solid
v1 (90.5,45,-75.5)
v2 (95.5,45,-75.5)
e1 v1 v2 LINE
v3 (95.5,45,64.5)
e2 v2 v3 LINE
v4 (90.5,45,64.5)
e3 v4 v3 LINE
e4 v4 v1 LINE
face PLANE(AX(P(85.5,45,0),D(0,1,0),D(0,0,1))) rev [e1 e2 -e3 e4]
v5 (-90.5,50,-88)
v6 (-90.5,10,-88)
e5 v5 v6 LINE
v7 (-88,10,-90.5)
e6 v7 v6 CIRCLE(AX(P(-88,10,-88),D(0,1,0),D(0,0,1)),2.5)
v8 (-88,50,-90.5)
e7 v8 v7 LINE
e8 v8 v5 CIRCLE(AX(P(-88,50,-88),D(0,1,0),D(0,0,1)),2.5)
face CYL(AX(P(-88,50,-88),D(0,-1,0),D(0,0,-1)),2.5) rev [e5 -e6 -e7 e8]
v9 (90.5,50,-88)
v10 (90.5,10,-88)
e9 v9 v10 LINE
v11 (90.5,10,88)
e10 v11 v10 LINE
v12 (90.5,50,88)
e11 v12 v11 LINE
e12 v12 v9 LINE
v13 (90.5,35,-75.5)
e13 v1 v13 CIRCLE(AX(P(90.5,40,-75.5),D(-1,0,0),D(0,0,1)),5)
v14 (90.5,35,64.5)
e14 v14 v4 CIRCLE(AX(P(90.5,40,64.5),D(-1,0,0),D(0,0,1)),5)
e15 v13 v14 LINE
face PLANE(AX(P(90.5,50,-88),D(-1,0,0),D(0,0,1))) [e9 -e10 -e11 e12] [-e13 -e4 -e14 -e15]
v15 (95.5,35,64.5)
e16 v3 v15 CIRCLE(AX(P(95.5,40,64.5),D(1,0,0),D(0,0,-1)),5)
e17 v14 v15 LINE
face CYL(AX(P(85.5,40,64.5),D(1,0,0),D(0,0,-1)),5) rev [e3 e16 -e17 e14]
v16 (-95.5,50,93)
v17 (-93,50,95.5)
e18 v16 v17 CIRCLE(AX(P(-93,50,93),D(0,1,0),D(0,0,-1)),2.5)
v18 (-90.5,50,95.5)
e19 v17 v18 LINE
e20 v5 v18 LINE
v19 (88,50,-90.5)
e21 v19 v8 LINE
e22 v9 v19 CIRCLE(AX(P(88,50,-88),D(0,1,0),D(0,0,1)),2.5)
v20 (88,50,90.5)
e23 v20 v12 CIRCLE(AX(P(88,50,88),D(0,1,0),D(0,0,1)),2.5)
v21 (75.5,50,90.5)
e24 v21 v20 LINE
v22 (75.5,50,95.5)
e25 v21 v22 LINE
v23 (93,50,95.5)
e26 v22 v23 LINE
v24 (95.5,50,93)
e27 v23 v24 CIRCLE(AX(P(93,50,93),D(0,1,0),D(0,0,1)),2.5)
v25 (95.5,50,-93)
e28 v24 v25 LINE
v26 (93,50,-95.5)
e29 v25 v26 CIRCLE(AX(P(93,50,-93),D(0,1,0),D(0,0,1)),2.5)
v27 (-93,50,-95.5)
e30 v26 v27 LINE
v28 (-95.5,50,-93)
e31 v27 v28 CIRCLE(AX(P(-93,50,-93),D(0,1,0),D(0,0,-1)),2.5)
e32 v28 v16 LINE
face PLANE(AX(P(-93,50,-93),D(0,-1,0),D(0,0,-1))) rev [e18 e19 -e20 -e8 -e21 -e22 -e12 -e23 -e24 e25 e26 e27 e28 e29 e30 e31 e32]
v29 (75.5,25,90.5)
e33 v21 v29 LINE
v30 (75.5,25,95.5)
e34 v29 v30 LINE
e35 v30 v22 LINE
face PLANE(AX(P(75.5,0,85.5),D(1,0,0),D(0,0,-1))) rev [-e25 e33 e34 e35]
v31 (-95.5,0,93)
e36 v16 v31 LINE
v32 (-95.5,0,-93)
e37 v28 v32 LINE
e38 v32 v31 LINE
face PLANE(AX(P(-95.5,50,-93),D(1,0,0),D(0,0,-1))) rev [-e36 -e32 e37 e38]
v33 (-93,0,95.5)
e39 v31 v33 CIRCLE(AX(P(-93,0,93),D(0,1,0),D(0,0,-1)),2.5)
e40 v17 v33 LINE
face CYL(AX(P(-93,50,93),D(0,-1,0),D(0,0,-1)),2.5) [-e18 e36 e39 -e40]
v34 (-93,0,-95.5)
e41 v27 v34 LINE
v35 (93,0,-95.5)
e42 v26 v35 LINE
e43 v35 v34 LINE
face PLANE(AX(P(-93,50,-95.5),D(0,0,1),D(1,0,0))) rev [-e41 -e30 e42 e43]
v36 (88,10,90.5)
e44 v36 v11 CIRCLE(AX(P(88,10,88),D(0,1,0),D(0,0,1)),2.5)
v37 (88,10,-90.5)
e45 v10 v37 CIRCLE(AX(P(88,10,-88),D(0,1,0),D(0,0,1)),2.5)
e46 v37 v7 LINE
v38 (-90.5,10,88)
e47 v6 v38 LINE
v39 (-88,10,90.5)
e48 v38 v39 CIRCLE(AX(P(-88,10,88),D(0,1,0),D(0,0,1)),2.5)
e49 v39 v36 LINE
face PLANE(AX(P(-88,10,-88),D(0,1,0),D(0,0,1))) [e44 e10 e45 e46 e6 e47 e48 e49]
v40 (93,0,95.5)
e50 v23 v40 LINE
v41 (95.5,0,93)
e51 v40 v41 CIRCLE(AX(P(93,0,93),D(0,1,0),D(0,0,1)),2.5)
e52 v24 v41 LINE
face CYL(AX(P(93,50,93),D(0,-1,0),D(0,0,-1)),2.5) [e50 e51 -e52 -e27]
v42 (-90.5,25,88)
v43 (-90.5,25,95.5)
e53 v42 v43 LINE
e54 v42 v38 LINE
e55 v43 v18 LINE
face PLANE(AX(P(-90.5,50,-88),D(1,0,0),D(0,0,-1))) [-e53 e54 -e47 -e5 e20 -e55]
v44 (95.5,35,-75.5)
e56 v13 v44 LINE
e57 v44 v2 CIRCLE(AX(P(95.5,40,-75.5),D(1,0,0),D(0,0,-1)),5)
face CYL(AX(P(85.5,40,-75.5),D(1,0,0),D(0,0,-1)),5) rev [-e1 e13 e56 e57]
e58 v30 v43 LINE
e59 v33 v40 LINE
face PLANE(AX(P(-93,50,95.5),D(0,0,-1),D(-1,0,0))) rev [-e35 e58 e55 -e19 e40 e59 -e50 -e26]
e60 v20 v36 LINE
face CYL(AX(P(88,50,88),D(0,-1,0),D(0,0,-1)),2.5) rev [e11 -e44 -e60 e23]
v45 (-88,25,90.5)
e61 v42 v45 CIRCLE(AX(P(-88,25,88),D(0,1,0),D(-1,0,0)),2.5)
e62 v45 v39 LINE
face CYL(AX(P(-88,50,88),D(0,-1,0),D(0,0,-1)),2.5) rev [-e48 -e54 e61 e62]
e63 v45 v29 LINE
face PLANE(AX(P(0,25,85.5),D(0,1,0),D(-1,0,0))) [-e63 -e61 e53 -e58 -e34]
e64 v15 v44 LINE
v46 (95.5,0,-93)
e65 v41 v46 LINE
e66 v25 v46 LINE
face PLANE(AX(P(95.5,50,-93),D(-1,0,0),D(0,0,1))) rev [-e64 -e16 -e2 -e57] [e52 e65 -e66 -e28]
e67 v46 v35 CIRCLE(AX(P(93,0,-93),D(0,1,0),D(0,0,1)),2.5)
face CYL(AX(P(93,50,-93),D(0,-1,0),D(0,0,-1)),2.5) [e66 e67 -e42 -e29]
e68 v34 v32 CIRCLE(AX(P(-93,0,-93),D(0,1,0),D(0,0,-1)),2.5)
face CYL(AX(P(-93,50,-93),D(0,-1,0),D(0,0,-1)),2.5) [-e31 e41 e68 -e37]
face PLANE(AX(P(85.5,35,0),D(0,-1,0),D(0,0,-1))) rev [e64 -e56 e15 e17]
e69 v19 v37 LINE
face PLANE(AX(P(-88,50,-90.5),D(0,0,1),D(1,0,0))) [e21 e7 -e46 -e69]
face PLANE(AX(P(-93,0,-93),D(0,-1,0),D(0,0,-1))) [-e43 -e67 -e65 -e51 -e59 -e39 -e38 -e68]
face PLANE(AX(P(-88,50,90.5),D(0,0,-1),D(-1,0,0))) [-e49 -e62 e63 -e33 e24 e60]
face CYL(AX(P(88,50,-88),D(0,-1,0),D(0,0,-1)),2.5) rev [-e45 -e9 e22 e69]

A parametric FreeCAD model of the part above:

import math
import FreeCAD as App
import Part
import Sketcher

V = App.Vector

doc = App.newDocument("Part")
body = doc.addObject("PartDesign::Body", "Body")

sketch1 = doc.addObject("Sketcher::SketchObject", "Sketch")
body.addObject(sketch1)
sketch1.AttachmentSupport = (doc.XZ_Plane, [""])
sketch1.MapMode = "FlatFace"
sketch1.addGeometry([
    Part.LineSegment(V(93, -95.5, 0), V(-93, -95.5, 0)),
    Part.ArcOfCircle(Part.Circle(V(-93, -93, 0), V(0, 0, 1), 2.5), math.radians(180), math.radians(270)),
    Part.LineSegment(V(-95.5, -93, 0), V(-95.5, 93, 0)),
    Part.ArcOfCircle(Part.Circle(V(-93, 93, 0), V(0, 0, 1), 2.5), math.radians(90), math.radians(180)),
    Part.LineSegment(V(-93, 95.5, 0), V(93, 95.5, 0)),
    Part.ArcOfCircle(Part.Circle(V(93, 93, 0), V(0, 0, 1), 2.5), math.radians(0), math.radians(90)),
    Part.LineSegment(V(95.5, 93, 0), V(95.5, -93, 0)),
    Part.ArcOfCircle(Part.Circle(V(93, -93, 0), V(0, 0, 1), 2.5), math.radians(-90), math.radians(0)),
    Part.LineSegment(V(-88, -90.5, 0), V(88, -90.5, 0)),
    Part.ArcOfCircle(Part.Circle(V(88, -88, 0), V(0, 0, 1), 2.5), math.radians(-90), math.radians(0)),
    Part.LineSegment(V(90.5, -88, 0), V(90.5, 88, 0)),
    Part.ArcOfCircle(Part.Circle(V(88, 88, 0), V(0, 0, 1), 2.5), math.radians(0), math.radians(90)),
    Part.LineSegment(V(88, 90.5, 0), V(-88, 90.5, 0)),
    Part.ArcOfCircle(Part.Circle(V(-88, 88, 0), V(0, 0, 1), 2.5), math.radians(90), math.radians(180)),
    Part.LineSegment(V(-90.5, 88, 0), V(-90.5, -88, 0)),
    Part.ArcOfCircle(Part.Circle(V(-88, -88, 0), V(0, 0, 1), 2.5), math.radians(180), math.radians(270)),
], False)
sketch1.addConstraint([
    Sketcher.Constraint("Tangent", 0, 2, 1, 2),
    Sketcher.Constraint("Tangent", 1, 1, 2, 1),
    Sketcher.Constraint("Tangent", 2, 2, 3, 2),
    Sketcher.Constraint("Tangent", 3, 1, 4, 1),
    Sketcher.Constraint("Tangent", 4, 2, 5, 2),
    Sketcher.Constraint("Tangent", 5, 1, 6, 1),
    Sketcher.Constraint("Tangent", 6, 2, 7, 2),
    Sketcher.Constraint("Tangent", 7, 1, 0, 1),
    Sketcher.Constraint("Tangent", 8, 2, 9, 1),
    Sketcher.Constraint("Tangent", 9, 2, 10, 1),
    Sketcher.Constraint("Tangent", 10, 2, 11, 1),
    Sketcher.Constraint("Tangent", 11, 2, 12, 1),
    Sketcher.Constraint("Tangent", 12, 2, 13, 1),
    Sketcher.Constraint("Tangent", 13, 2, 14, 1),
    Sketcher.Constraint("Tangent", 14, 2, 15, 1),
    Sketcher.Constraint("Tangent", 15, 2, 8, 1),
    Sketcher.Constraint("Horizontal", 0),
    Sketcher.Constraint("Vertical", 2),
    Sketcher.Constraint("Horizontal", 4),
    Sketcher.Constraint("Vertical", 6),
    Sketcher.Constraint("Horizontal", 8),
    Sketcher.Constraint("Vertical", 10),
    Sketcher.Constraint("Horizontal", 12),
    Sketcher.Constraint("Vertical", 14),
    Sketcher.Constraint("Equal", 1, 3),
    Sketcher.Constraint("Equal", 3, 5),
    Sketcher.Constraint("Equal", 5, 7),
    Sketcher.Constraint("Equal", 7, 9),
    Sketcher.Constraint("Equal", 9, 11),
    Sketcher.Constraint("Equal", 11, 13),
    Sketcher.Constraint("Equal", 13, 15),
    Sketcher.Constraint("Symmetric", 1, 3, 5, 3, -1, 1),
    Sketcher.Constraint("Symmetric", 9, 3, 13, 3, -1, 1),
    Sketcher.Constraint("Equal", 4, 2),
    Sketcher.Constraint("Equal", 12, 10),
    Sketcher.Constraint("Radius", 1, 2.5),
    Sketcher.Constraint("DistanceX", 0, 2, 0, 1, 186.0),
    Sketcher.Constraint("DistanceX", 8, 1, 8, 2, 176.0),
])
pad1 = doc.addObject("PartDesign::Pad", "Pad")
body.addObject(pad1)
pad1.Profile = sketch1
pad1.Length = 50
pad1.Reversed = True

sketch2 = doc.addObject("Sketcher::SketchObject", "Sketch001")
body.addObject(sketch2)
sketch2.AttachmentSupport = (doc.XZ_Plane, [""])
sketch2.MapMode = "FlatFace"
sketch2.addGeometry([
    Part.LineSegment(V(88, -90.5, 0), V(-88, -90.5, 0)),
    Part.ArcOfCircle(Part.Circle(V(-88, -88, 0), V(0, 0, 1), 2.5), math.radians(180), math.radians(270)),
    Part.LineSegment(V(-90.5, -88, 0), V(-90.5, 88, 0)),
    Part.ArcOfCircle(Part.Circle(V(-88, 88, 0), V(0, 0, 1), 2.5), math.radians(90), math.radians(180)),
    Part.LineSegment(V(-88, 90.5, 0), V(88, 90.5, 0)),
    Part.ArcOfCircle(Part.Circle(V(88, 88, 0), V(0, 0, 1), 2.5), math.radians(0), math.radians(90)),
    Part.LineSegment(V(90.5, 88, 0), V(90.5, -88, 0)),
    Part.ArcOfCircle(Part.Circle(V(88, -88, 0), V(0, 0, 1), 2.5), math.radians(-90), math.radians(0)),
], False)
sketch2.addConstraint([
    Sketcher.Constraint("Tangent", 0, 2, 1, 2),
    Sketcher.Constraint("Tangent", 1, 1, 2, 1),
    Sketcher.Constraint("Tangent", 2, 2, 3, 2),
    Sketcher.Constraint("Tangent", 3, 1, 4, 1),
    Sketcher.Constraint("Tangent", 4, 2, 5, 2),
    Sketcher.Constraint("Tangent", 5, 1, 6, 1),
    Sketcher.Constraint("Tangent", 6, 2, 7, 2),
    Sketcher.Constraint("Tangent", 7, 1, 0, 1),
    Sketcher.Constraint("Horizontal", 0),
    Sketcher.Constraint("Vertical", 2),
    Sketcher.Constraint("Horizontal", 4),
    Sketcher.Constraint("Vertical", 6),
    Sketcher.Constraint("Equal", 1, 3),
    Sketcher.Constraint("Equal", 3, 5),
    Sketcher.Constraint("Equal", 5, 7),
    Sketcher.Constraint("Symmetric", 1, 3, 5, 3, -1, 1),
    Sketcher.Constraint("Equal", 4, 2),
    Sketcher.Constraint("Radius", 1, 2.5),
    Sketcher.Constraint("DistanceX", 0, 2, 0, 1, 176.0),
])
pad2 = doc.addObject("PartDesign::Pad", "Pad001")
body.addObject(pad2)
pad2.Profile = sketch2
pad2.Length = 10
pad2.Reversed = True

sketch3 = doc.addObject("Sketcher::SketchObject", "Sketch002")
body.addObject(sketch3)
sketch3.AttachmentSupport = (doc.XY_Plane, [""])
sketch3.MapMode = "FlatFace"
sketch3.AttachmentOffset = App.Placement(V(0, 0, 95.5), App.Rotation())
sketch3.addGeometry([
    Part.LineSegment(V(-90, 25, 0), V(76, 25, 0)),
    Part.LineSegment(V(76, 25, 0), V(76, 50, 0)),
    Part.LineSegment(V(76, 50, 0), V(-90, 50, 0)),
    Part.LineSegment(V(-90, 50, 0), V(-90, 25, 0)),
], False)
sketch3.addConstraint([
    Sketcher.Constraint("Coincident", 0, 2, 1, 1),
    Sketcher.Constraint("Coincident", 1, 2, 2, 1),
    Sketcher.Constraint("Coincident", 2, 2, 3, 1),
    Sketcher.Constraint("Coincident", 3, 2, 0, 1),
    Sketcher.Constraint("Horizontal", 0),
    Sketcher.Constraint("Vertical", 1),
    Sketcher.Constraint("Horizontal", 2),
    Sketcher.Constraint("Vertical", 3),
    Sketcher.Constraint("DistanceX", 0, 1, 0, 2, 166.0),
    Sketcher.Constraint("DistanceY", 1, 1, 1, 2, 25.0),
    Sketcher.Constraint("DistanceY", -1, 1, 0, 2, 25.0),
    Sketcher.Constraint("DistanceX", -1, 1, 0, 2, 75.5),
])
pocket1 = doc.addObject("PartDesign::Pocket", "Pocket")
body.addObject(pocket1)
pocket1.Profile = sketch3
pocket1.Length = 10

sketch4 = doc.addObject("Sketcher::SketchObject", "Sketch003")
body.addObject(sketch4)
sketch4.AttachmentSupport = (doc.YZ_Plane, [""])
sketch4.MapMode = "FlatFace"
sketch4.AttachmentOffset = App.Placement(V(0, 0, 95.5), App.Rotation())
sketch4.addGeometry([
    Part.LineSegment(V(35, 64, 0), V(35, -76, 0)),
    Part.ArcOfCircle(Part.Circle(V(40, -76, 0), V(0, 0, 1), 5), math.radians(180), math.radians(360)),
    Part.LineSegment(V(45, -76, 0), V(45, 64, 0)),
    Part.ArcOfCircle(Part.Circle(V(40, 64, 0), V(0, 0, 1), 5), math.radians(0), math.radians(180)),
], False)
sketch4.addConstraint([
    Sketcher.Constraint("Tangent", 0, 2, 1, 1),
    Sketcher.Constraint("Tangent", 1, 2, 2, 1),
    Sketcher.Constraint("Tangent", 2, 2, 3, 1),
    Sketcher.Constraint("Tangent", 3, 2, 0, 1),
    Sketcher.Constraint("Vertical", 0),
    Sketcher.Constraint("Vertical", 2),
    Sketcher.Constraint("Radius", 1, 5.0),
    Sketcher.Constraint("DistanceY", 0, 2, 0, 1, 140.0),
    Sketcher.Constraint("DistanceX", -1, 1, 1, 3, 40.0),
    Sketcher.Constraint("DistanceY", 1, 3, -1, 1, 75.5),
])
pocket2 = doc.addObject("PartDesign::Pocket", "Pocket001")
body.addObject(pocket2)
pocket2.Profile = sketch4
pocket2.Length = 10

doc.recompute()
